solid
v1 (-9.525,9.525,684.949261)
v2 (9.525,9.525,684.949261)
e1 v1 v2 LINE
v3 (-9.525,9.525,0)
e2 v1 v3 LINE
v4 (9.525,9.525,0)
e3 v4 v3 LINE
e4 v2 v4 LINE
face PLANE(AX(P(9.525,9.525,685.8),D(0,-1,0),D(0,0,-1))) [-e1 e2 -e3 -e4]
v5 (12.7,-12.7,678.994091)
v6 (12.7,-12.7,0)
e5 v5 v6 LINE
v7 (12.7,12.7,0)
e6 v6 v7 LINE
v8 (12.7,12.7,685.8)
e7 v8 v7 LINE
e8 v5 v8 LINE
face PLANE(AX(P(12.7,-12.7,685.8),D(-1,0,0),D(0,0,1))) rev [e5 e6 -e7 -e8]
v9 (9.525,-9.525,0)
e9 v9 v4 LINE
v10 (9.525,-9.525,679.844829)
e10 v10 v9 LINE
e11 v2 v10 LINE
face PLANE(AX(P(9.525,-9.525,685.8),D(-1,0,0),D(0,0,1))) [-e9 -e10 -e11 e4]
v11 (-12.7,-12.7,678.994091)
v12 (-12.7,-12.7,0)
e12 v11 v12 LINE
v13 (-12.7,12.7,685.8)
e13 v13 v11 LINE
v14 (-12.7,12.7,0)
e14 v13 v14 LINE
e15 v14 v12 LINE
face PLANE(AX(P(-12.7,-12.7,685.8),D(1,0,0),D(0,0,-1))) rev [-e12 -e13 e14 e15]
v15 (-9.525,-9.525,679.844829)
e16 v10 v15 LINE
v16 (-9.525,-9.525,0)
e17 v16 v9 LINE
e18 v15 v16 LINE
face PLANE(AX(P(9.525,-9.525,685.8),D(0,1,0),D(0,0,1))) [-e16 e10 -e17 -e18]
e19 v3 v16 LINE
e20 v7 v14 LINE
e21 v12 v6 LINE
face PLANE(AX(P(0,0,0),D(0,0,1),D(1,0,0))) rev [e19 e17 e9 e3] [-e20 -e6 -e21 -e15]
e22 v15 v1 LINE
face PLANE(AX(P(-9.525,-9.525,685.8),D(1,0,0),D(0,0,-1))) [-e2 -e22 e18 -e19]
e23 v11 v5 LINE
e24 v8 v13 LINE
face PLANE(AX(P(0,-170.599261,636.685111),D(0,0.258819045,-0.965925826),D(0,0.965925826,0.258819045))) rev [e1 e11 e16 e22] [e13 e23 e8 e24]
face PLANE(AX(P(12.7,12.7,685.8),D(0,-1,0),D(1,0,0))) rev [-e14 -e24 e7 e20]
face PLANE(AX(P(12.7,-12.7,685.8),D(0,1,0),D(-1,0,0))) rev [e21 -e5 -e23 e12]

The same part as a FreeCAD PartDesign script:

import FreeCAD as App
import Part
import Sketcher
from FreeCAD import Vector
Q = App.Units.Quantity


def add_polygon(sketch, points):
    """Adds a closed chain of lines whose ends are joined by coincident constraints."""
    first, n = sketch.GeometryCount, len(points)
    for a, b in zip(points, points[1:] + points[:1]):
        sketch.addGeometry(Part.LineSegment(App.Vector(*a, 0), App.Vector(*b, 0)), False)
    for i in range(n):
        sketch.addConstraint(Sketcher.Constraint("Coincident", first + i, 2, first + (i + 1) % n, 1))

doc = App.newDocument("Part")
body = doc.addObject("PartDesign::Body", "Body")

# Sketch on XY plane
sketch1 = body.newObject("Sketcher::SketchObject", "Sketch")
sketch1.AttachmentSupport = (doc.getObject("XY_Plane"), [""])
sketch1.MapMode = "FlatFace"
add_polygon(sketch1, [(-13, 13), (-13, -13), (13, -13), (13, 13)])  # lines 0-3
add_polygon(sketch1, [(10, -10), (-10, -10), (-10, 10), (10, 10)])  # lines 4-7
sketch1.addConstraint(Sketcher.Constraint("Vertical", 0))
sketch1.addConstraint(Sketcher.Constraint("Horizontal", 1))
sketch1.addConstraint(Sketcher.Constraint("Vertical", 2))
sketch1.addConstraint(Sketcher.Constraint("Horizontal", 3))
sketch1.addConstraint(Sketcher.Constraint("Horizontal", 4))
sketch1.addConstraint(Sketcher.Constraint("Vertical", 5))
sketch1.addConstraint(Sketcher.Constraint("Horizontal", 6))
sketch1.addConstraint(Sketcher.Constraint("Vertical", 7))
sketch1.addConstraint(Sketcher.Constraint("Symmetric", 0, 2, 2, 2, -1, 1))
sketch1.addConstraint(Sketcher.Constraint("Symmetric", 4, 2, 6, 2, -1, 1))
sketch1.addConstraint(Sketcher.Constraint("Equal", 3, 0))
sketch1.addConstraint(Sketcher.Constraint("Equal", 6, 5))
sketch1.addConstraint(Sketcher.Constraint("DistanceX", 1, 1, 1, 2, Q("1 in")))
sketch1.addConstraint(Sketcher.Constraint("DistanceX", 4, 2, 4, 1, Q("0.75 in")))
pad1 = body.newObject("PartDesign::Pad", "Pad")
pad1.Profile = sketch1
pad1.Length = Q("27 in")

# Sketch on an angled plane
sketch2 = body.newObject("Sketcher::SketchObject", "Sketch001")
sketch2.Placement = App.Placement(Vector(0, -170.599261, 636.685111), App.Rotation(Vector(-1, 0, 0), Vector(0, -0.965925826, -0.258819045), Vector(0, -0.258819045, 0.965925826), "ZXY"))
add_polygon(sketch2, [(-13, -163), (-13, -190), (13, -190), (13, -163)])  # lines 0-3
sketch2.addConstraint(Sketcher.Constraint("Vertical", 0))
sketch2.addConstraint(Sketcher.Constraint("Horizontal", 1))
sketch2.addConstraint(Sketcher.Constraint("Vertical", 2))
sketch2.addConstraint(Sketcher.Constraint("Horizontal", 3))
sketch2.addConstraint(Sketcher.Constraint("DistanceX", 1, 1, 1, 2, Q("1 in")))
sketch2.addConstraint(Sketcher.Constraint("DistanceX", 0, 2, -1, 1, Q("0.5 in")))
sketch2.addConstraint(Sketcher.Constraint("DistanceY", 0, 2, 0, 1, 26.296015))
sketch2.addConstraint(Sketcher.Constraint("DistanceY", 0, 2, -1, 1, 189.765359))
pocket1 = body.newObject("PartDesign::Pocket", "Pocket")
pocket1.Profile = sketch2
pocket1.Type = "ThroughAll"
pocket1.Reversed = True

doc.recompute()
